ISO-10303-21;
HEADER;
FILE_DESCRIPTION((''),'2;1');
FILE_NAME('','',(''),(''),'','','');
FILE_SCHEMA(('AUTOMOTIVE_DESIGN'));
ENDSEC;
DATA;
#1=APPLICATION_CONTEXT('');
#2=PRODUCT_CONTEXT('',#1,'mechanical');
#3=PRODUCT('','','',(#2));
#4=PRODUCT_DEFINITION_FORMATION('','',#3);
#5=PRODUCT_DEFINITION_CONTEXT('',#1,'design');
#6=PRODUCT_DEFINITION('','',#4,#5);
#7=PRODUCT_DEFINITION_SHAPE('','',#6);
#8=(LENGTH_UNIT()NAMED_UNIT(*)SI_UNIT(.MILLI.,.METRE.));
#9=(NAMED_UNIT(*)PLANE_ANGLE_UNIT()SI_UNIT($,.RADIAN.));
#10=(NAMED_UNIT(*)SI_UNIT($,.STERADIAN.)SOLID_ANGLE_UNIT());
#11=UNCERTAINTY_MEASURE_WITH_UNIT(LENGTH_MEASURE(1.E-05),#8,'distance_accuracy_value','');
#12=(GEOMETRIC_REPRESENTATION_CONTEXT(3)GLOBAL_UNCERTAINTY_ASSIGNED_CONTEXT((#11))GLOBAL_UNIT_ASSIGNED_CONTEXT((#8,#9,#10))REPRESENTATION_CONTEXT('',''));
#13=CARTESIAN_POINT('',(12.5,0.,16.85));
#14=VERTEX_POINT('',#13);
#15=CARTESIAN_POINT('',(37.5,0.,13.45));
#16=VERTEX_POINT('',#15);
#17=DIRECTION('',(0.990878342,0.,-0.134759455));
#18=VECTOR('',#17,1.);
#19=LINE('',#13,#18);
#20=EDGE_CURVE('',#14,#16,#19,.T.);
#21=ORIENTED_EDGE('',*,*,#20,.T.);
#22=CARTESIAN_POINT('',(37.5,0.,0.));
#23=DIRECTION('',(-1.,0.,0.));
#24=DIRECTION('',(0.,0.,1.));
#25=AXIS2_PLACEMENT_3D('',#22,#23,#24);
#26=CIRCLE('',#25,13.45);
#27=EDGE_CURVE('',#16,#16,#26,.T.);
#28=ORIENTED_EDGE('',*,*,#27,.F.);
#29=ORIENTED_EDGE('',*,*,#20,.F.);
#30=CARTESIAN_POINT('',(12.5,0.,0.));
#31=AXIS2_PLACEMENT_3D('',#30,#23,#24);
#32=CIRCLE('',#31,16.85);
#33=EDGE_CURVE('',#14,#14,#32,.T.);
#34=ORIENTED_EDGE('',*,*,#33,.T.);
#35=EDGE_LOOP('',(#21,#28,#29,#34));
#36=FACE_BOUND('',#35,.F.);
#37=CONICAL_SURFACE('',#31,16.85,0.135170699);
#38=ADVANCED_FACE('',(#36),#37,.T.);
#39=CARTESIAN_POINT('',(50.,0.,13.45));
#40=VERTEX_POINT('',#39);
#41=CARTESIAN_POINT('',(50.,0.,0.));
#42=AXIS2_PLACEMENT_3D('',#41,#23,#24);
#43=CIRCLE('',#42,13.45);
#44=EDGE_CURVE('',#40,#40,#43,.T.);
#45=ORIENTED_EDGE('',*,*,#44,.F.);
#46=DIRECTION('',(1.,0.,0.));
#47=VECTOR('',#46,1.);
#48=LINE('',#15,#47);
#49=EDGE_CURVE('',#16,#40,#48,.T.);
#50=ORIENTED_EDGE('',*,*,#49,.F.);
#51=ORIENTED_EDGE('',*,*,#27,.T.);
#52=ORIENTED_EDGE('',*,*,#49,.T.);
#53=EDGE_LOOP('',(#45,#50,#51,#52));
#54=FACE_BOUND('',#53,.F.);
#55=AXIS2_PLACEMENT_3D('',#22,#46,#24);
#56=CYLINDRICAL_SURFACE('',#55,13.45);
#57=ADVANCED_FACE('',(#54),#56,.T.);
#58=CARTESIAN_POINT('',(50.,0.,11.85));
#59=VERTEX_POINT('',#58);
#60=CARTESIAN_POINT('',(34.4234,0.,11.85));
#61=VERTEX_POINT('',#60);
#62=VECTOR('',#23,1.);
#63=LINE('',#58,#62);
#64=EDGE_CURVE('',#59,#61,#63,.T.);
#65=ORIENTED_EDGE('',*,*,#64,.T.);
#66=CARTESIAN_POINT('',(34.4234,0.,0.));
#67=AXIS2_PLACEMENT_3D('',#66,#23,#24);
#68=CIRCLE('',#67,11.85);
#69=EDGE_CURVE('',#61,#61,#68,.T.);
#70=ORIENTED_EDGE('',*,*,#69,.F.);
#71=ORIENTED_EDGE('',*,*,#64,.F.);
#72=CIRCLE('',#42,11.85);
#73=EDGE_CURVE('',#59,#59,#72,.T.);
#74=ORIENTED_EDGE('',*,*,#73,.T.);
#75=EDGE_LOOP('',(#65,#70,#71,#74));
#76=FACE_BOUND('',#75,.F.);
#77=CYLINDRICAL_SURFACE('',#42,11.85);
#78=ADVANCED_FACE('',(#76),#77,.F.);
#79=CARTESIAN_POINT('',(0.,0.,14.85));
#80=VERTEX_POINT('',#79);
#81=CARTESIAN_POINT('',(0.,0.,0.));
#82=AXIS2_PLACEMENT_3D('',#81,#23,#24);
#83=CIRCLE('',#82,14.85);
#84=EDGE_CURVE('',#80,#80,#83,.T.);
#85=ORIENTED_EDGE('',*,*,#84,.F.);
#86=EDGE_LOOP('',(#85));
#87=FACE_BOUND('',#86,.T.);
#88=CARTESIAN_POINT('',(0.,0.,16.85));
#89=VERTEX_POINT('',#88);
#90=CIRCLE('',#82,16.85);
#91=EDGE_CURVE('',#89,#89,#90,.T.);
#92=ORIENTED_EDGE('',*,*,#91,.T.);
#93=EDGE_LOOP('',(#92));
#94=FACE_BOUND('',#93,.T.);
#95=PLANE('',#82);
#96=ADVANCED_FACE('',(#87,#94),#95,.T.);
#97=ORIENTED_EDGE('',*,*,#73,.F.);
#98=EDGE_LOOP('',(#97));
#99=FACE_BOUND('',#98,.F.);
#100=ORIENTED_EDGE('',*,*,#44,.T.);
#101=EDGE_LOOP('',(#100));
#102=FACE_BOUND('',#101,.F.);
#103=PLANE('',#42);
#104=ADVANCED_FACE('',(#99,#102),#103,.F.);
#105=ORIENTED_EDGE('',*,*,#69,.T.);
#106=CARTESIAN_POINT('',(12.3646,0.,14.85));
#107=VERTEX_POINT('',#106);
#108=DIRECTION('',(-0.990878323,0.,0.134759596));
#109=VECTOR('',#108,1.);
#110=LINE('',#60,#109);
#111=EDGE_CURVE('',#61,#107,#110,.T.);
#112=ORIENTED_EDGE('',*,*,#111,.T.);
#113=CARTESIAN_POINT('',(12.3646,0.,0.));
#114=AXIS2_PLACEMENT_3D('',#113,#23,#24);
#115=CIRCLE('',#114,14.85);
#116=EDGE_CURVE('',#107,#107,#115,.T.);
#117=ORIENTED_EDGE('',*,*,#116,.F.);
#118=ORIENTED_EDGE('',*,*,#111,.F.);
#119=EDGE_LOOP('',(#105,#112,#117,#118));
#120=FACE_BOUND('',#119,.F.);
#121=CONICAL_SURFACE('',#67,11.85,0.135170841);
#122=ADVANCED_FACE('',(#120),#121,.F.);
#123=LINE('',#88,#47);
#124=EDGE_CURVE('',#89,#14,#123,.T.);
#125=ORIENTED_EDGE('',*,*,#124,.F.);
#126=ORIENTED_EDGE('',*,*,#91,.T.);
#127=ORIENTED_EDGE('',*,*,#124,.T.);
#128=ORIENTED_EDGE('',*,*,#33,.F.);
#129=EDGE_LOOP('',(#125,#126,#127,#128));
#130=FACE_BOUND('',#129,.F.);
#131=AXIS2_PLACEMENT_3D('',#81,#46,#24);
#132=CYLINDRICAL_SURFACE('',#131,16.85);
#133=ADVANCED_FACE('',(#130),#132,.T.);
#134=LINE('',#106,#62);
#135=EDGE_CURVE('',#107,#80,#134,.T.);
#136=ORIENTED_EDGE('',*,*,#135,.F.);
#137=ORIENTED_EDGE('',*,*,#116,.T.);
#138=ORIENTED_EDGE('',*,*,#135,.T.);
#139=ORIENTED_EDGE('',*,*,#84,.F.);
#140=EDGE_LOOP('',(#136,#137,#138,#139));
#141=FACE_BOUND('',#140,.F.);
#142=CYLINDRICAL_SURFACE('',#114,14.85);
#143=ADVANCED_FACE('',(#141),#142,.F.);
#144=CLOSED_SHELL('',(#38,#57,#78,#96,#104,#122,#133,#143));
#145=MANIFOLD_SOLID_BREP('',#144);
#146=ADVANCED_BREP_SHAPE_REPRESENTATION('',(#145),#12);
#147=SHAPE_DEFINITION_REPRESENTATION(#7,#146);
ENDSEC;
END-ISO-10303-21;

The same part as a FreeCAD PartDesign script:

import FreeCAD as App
import Part
import Sketcher
from FreeCAD import Vector

doc = App.newDocument("Part")
params = doc.addObject("Spreadsheet::Sheet", "Params")
for row, (alias, value) in enumerate([
    ("sketch1_height", "2 mm"),
    ("sketch1_width", "12.5 mm"),
    ("sketch1_height2", "1.6 mm"),
    ("revolution_angle", "360 deg"),
], start=1):
    params.set(f"A{row}", alias)
    params.set(f"B{row}", "=" + value)
    params.setAlias(f"B{row}", alias)

body = doc.addObject("PartDesign::Body", "Body")

# Sketch on XZ plane
sketch1 = body.newObject("Sketcher::SketchObject", "Sketch")
sketch1.AttachmentSupport = (doc.getObject("XZ_Plane"), [""])
sketch1.MapMode = "FlatFace"
sketch1.addGeometry([
    Part.LineSegment(Vector(0, 14.8, 0), Vector(0, 16.9, 0)),  # 0
    Part.LineSegment(Vector(0, 16.9, 0), Vector(12.5, 16.9, 0)),  # 1
    Part.LineSegment(Vector(12.5, 16.9, 0), Vector(37.5, 13.4, 0)),  # 2
    Part.LineSegment(Vector(37.5, 13.4, 0), Vector(50, 13.4, 0)),  # 3
    Part.LineSegment(Vector(50, 13.4, 0), Vector(50, 11.8, 0)),  # 4
    Part.LineSegment(Vector(50, 11.8, 0), Vector(34.4, 11.8, 0)),  # 5
    Part.LineSegment(Vector(34.4, 11.8, 0), Vector(12.4, 14.8, 0)),  # 6
    Part.LineSegment(Vector(12.4, 14.8, 0), Vector(0, 14.8, 0)),  # 7
], False)
sketch1.addConstraint([
    Sketcher.Constraint("Coincident", 0, 2, 1, 1),
    Sketcher.Constraint("Coincident", 1, 2, 2, 1),
    Sketcher.Constraint("Coincident", 2, 2, 3, 1),
    Sketcher.Constraint("Coincident", 3, 2, 4, 1),
    Sketcher.Constraint("Coincident", 4, 2, 5, 1),
    Sketcher.Constraint("Coincident", 5, 2, 6, 1),
    Sketcher.Constraint("Coincident", 6, 2, 7, 1),
    Sketcher.Constraint("Coincident", 7, 2, 0, 1),
    Sketcher.Constraint("Vertical", 0),
    Sketcher.Constraint("Horizontal", 1),
    Sketcher.Constraint("Horizontal", 3),
    Sketcher.Constraint("Vertical", 4),
    Sketcher.Constraint("Horizontal", 5),
    Sketcher.Constraint("Horizontal", 7),
    Sketcher.Constraint("PointOnObject", 0, 2, -2),
    Sketcher.Constraint("Parallel", 2, 6),
    Sketcher.Constraint("Equal", 1, 3),
    Sketcher.Constraint("DistanceY", 0, 1, 0, 2, 2.0),
    Sketcher.Constraint("DistanceX", 1, 1, 1, 2, 12.5),
    Sketcher.Constraint("DistanceY", 4, 2, 4, 1, 1.6),
    Sketcher.Constraint("DistanceX", -1, 1, 3, 2, 50.0),
    Sketcher.Constraint("DistanceY", 4, 2, 1, 2, 5.0),
    Sketcher.Constraint("DistanceY", -1, 1, 0, 2, 16.85),
    Sketcher.Constraint("DistanceX", 5, 2, 5, 1, 15.5766),
])
sketch1.setExpression("Constraints[17]", "Params.sketch1_height")
sketch1.setExpression("Constraints[18]", "Params.sketch1_width")
sketch1.setExpression("Constraints[19]", "Params.sketch1_height2")
revolution = body.newObject("PartDesign::Revolution", "Revolution")
revolution.Profile = sketch1
revolution.ReferenceAxis = (sketch1, ["H_Axis"])
revolution.setExpression("Angle", "Params.revolution_angle")

doc.recompute()
